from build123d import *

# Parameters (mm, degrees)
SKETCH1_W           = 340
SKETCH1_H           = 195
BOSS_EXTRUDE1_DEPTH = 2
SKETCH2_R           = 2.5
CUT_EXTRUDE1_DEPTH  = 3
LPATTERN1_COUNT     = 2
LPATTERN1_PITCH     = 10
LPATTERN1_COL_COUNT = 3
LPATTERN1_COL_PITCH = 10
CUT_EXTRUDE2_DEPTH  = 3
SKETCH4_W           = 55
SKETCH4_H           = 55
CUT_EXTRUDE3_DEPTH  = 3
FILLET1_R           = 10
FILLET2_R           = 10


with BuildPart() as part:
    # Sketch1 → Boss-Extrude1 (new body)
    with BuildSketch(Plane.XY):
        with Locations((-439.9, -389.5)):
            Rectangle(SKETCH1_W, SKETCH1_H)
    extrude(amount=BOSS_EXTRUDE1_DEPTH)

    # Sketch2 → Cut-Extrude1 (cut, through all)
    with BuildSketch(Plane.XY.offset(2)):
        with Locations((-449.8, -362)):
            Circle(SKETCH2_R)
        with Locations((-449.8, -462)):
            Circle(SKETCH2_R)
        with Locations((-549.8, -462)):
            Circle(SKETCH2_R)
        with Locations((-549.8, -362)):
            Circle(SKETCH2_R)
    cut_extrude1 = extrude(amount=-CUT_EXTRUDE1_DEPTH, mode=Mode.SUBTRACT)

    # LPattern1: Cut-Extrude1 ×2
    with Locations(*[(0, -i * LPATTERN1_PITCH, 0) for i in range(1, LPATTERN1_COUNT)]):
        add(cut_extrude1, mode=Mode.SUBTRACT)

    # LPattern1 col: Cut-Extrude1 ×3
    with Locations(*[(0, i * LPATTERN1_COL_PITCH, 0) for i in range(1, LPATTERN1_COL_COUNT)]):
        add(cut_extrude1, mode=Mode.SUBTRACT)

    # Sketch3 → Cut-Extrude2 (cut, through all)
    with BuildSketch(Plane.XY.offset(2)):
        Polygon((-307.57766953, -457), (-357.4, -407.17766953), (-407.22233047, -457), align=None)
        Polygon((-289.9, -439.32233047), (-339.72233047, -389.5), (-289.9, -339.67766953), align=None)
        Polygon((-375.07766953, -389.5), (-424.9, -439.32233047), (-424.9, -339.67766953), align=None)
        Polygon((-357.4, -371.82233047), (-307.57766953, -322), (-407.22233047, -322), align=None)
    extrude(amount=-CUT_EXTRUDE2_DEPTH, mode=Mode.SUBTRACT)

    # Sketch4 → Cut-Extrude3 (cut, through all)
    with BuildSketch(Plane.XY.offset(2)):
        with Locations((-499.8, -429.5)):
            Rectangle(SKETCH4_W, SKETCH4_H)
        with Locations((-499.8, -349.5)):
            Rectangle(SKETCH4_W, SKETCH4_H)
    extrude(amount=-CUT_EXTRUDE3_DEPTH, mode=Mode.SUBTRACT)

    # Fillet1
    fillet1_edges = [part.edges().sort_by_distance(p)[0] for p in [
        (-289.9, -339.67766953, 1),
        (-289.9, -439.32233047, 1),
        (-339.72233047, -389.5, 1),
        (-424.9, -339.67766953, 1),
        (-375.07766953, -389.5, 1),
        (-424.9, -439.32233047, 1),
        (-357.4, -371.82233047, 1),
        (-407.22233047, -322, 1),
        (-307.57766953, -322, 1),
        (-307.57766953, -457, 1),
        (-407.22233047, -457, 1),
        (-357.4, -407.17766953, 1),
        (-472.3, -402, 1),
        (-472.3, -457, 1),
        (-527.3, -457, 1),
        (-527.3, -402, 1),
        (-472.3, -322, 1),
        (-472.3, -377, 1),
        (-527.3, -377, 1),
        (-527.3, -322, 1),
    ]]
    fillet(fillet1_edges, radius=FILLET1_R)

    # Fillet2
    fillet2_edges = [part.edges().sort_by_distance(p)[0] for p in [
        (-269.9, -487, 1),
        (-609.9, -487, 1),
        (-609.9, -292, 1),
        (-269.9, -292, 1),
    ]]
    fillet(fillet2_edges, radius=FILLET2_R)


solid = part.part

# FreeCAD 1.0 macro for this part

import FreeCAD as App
import Part
import Sketcher
Q = App.Units.Quantity


def edges_at(feature, points):
    """Names of the edges that pass closest to the given points."""
    edges = feature.Shape.Edges
    near = lambda p: min(range(len(edges)), key=lambda i: edges[i].distToShape(Part.Vertex(*p))[0])
    return sorted({f"Edge{near(p) + 1}" for p in points})

doc = App.newDocument("Part")
body = doc.addObject("PartDesign::Body", "Body")

sketch1 = body.newObject("Sketcher::SketchObject", "Sketch")
sketch1.AttachmentSupport = (doc.getObject("XY_Plane"), [""])
sketch1.MapMode = "FlatFace"
sketch1.addGeometry([
    Part.LineSegment(App.Vector(-610, -292, 0), App.Vector(-610, -487, 0)),
    Part.LineSegment(App.Vector(-610, -487, 0), App.Vector(-270, -487, 0)),
    Part.LineSegment(App.Vector(-270, -487, 0), App.Vector(-270, -292, 0)),
    Part.LineSegment(App.Vector(-270, -292, 0), App.Vector(-610, -292, 0)),
], False)
sketch1.addConstraint([
    Sketcher.Constraint("Coincident", 0, 2, 1, 1),
    Sketcher.Constraint("Coincident", 1, 2, 2, 1),
    Sketcher.Constraint("Coincident", 2, 2, 3, 1),
    Sketcher.Constraint("Coincident", 3, 2, 0, 1),
    Sketcher.Constraint("Vertical", 0),
    Sketcher.Constraint("Horizontal", 1),
    Sketcher.Constraint("Vertical", 2),
    Sketcher.Constraint("Horizontal", 3),
    Sketcher.Constraint("DistanceX", 1, 1, 1, 2, Q("340 mm")),
    Sketcher.Constraint("DistanceY", 0, 2, 0, 1, Q("195 mm")),
    Sketcher.Constraint("DistanceY", 0, 2, -1, 1, Q("487 mm")),
    Sketcher.Constraint("DistanceX", 0, 2, -1, 1, Q("609.9 mm")),
])
pad1 = body.newObject("PartDesign::Pad", "Pad")
pad1.Profile = sketch1
pad1.Length = 2

sketch2 = body.newObject("Sketcher::SketchObject", "Sketch001")
sketch2.AttachmentSupport = (doc.getObject("XY_Plane"), [""])
sketch2.MapMode = "FlatFace"
sketch2.AttachmentOffset = App.Placement(App.Vector(0, 0, 2), App.Rotation())
sketch2.addGeometry([
    Part.Circle(App.Vector(-449.8, -362, 0), App.Vector(0, 0, 1), 2.5),
    Part.Circle(App.Vector(-449.8, -462, 0), App.Vector(0, 0, 1), 2.5),
    Part.Circle(App.Vector(-549.8, -462, 0), App.Vector(0, 0, 1), 2.5),
    Part.Circle(App.Vector(-549.8, -362, 0), App.Vector(0, 0, 1), 2.5),
], False)
sketch2.addConstraint([
    Sketcher.Constraint("Equal", 0, 1),
    Sketcher.Constraint("Equal", 1, 2),
    Sketcher.Constraint("Equal", 2, 3),
    Sketcher.Constraint("Horizontal", 1, 3, 2, 3),
    Sketcher.Constraint("Horizontal", 0, 3, 3, 3),
    Sketcher.Constraint("Vertical", 0, 3, 1, 3),
    Sketcher.Constraint("Vertical", 2, 3, 3, 3),
    Sketcher.Constraint("Diameter", 0, Q("5 mm")),
    Sketcher.Constraint("DistanceY", 0, 3, -1, 1, Q("362 mm")),
    Sketcher.Constraint("DistanceY", 1, 3, -1, 1, Q("462 mm")),
    Sketcher.Constraint("DistanceX", 2, 3, 1, 3, Q("100 mm")),
    Sketcher.Constraint("DistanceX", 0, 3, -1, 1, Q("449.8 mm")),
])
pocket1 = body.newObject("PartDesign::Pocket", "Pocket")
pocket1.Profile = sketch2
pocket1.Type = "ThroughAll"
doc.recompute()

linearpattern = body.newObject("PartDesign::LinearPattern", "LinearPattern")
linearpattern.Originals = [pocket1]
linearpattern.Direction = (doc.getObject("Y_Axis"), [""])
linearpattern.Mode = "offset"
linearpattern.Offset = 10
linearpattern.Occurrences = 2
linearpattern.Reversed = True
body.Tip = linearpattern
doc.recompute()

linearpattern2 = body.newObject("PartDesign::LinearPattern", "LinearPattern001")
linearpattern2.Originals = [pocket1]
linearpattern2.Direction = (doc.getObject("Y_Axis"), [""])
linearpattern2.Mode = "offset"
linearpattern2.Offset = 10
linearpattern2.Occurrences = 3
body.Tip = linearpattern2

sketch3 = body.newObject("Sketcher::SketchObject", "Sketch002")
sketch3.AttachmentSupport = (doc.getObject("XY_Plane"), [""])
sketch3.MapMode = "FlatFace"
sketch3.AttachmentOffset = App.Placement(App.Vector(0, 0, 2), App.Rotation())
sketch3.addGeometry([
    Part.LineSegment(App.Vector(-308, -457, 0), App.Vector(-357, -407, 0)),
    Part.LineSegment(App.Vector(-357, -407, 0), App.Vector(-407, -457, 0)),
    Part.LineSegment(App.Vector(-407, -457, 0), App.Vector(-308, -457, 0)),
    Part.LineSegment(App.Vector(-340, -390, 0), App.Vector(-290, -439, 0)),
    Part.LineSegment(App.Vector(-290, -439, 0), App.Vector(-290, -340, 0)),
    Part.LineSegment(App.Vector(-290, -340, 0), App.Vector(-340, -390, 0)),
    Part.LineSegment(App.Vector(-425, -439, 0), App.Vector(-375, -390, 0)),
    Part.LineSegment(App.Vector(-375, -390, 0), App.Vector(-425, -340, 0)),
    Part.LineSegment(App.Vector(-425, -340, 0), App.Vector(-425, -439, 0)),
    Part.LineSegment(App.Vector(-357, -372, 0), App.Vector(-308, -322, 0)),
    Part.LineSegment(App.Vector(-308, -322, 0), App.Vector(-407, -322, 0)),
    Part.LineSegment(App.Vector(-407, -322, 0), App.Vector(-357, -372, 0)),
], False)
sketch3.addConstraint([
    Sketcher.Constraint("Coincident", 0, 2, 1, 1),
    Sketcher.Constraint("Coincident", 1, 2, 2, 1),
    Sketcher.Constraint("Coincident", 2, 2, 0, 1),
    Sketcher.Constraint("Coincident", 3, 2, 4, 1),
    Sketcher.Constraint("Coincident", 4, 2, 5, 1),
    Sketcher.Constraint("Coincident", 5, 2, 3, 1),
    Sketcher.Constraint("Coincident", 6, 2, 7, 1),
    Sketcher.Constraint("Coincident", 7, 2, 8, 1),
    Sketcher.Constraint("Coincident", 8, 2, 6, 1),
    Sketcher.Constraint("Coincident", 9, 2, 10, 1),
    Sketcher.Constraint("Coincident", 10, 2, 11, 1),
    Sketcher.Constraint("Coincident", 11, 2, 9, 1),
    Sketcher.Constraint("Horizontal", 2),
    Sketcher.Constraint("Vertical", 4),
    Sketcher.Constraint("Vertical", 8),
    Sketcher.Constraint("Horizontal", 10),
    Sketcher.Constraint("Perpendicular", 0, 1),
    Sketcher.Constraint("Perpendicular", 1, 3),
    Sketcher.Constraint("Perpendicular", 3, 5),
    Sketcher.Constraint("Parallel", 5, 6),
    Sketcher.Constraint("Perpendicular", 6, 7),
    Sketcher.Constraint("Perpendicular", 7, 9),
    Sketcher.Constraint("Perpendicular", 9, 11),
    Sketcher.Constraint("Horizontal", 5, 2, 6, 2),
    Sketcher.Constraint("Horizontal", 4, 2, 7, 2),
    Sketcher.Constraint("Horizontal", 3, 2, 8, 2),
    Sketcher.Constraint("Vertical", 2, 2, 9, 2),
    Sketcher.Constraint("Vertical", 1, 2, 10, 2),
    Sketcher.Constraint("Equal", 10, 4),
    Sketcher.Constraint("DistanceY", 1, 2, -1, 1, Q("457 mm")),
    Sketcher.Constraint("DistanceY", 9, 2, -1, 1, Q("322 mm")),
    Sketcher.Constraint("DistanceX", 7, 2, 4, 2, Q("135 mm")),
    Sketcher.Constraint("DistanceX", 0, 2, -1, 1, Q("357.4 mm")),
    Sketcher.Constraint("DistanceX", 3, 2, -1, 1, Q("289.9 mm")),
    Sketcher.Constraint("DistanceY", 5, 2, -1, 1, Q("389.5 mm")),
    Sketcher.Constraint("DistanceX", 2, 1, 2, 2, Q("99.644661 mm")),
])
pocket2 = body.newObject("PartDesign::Pocket", "Pocket001")
pocket2.Profile = sketch3
pocket2.Type = "ThroughAll"

sketch4 = body.newObject("Sketcher::SketchObject", "Sketch003")
sketch4.AttachmentSupport = (doc.getObject("XY_Plane"), [""])
sketch4.MapMode = "FlatFace"
sketch4.AttachmentOffset = App.Placement(App.Vector(0, 0, 2), App.Rotation())
sketch4.addGeometry([
    Part.LineSegment(App.Vector(-527, -402, 0), App.Vector(-527, -457, 0)),
    Part.LineSegment(App.Vector(-527, -457, 0), App.Vector(-472, -457, 0)),
    Part.LineSegment(App.Vector(-472, -457, 0), App.Vector(-472, -402, 0)),
    Part.LineSegment(App.Vector(-472, -402, 0), App.Vector(-527, -402, 0)),
    Part.LineSegment(App.Vector(-527, -322, 0), App.Vector(-527, -377, 0)),
    Part.LineSegment(App.Vector(-527, -377, 0), App.Vector(-472, -377, 0)),
    Part.LineSegment(App.Vector(-472, -377, 0), App.Vector(-472, -322, 0)),
    Part.LineSegment(App.Vector(-472, -322, 0), App.Vector(-527, -322, 0)),
], False)
sketch4.addConstraint([
    Sketcher.Constraint("Coincident", 0, 2, 1, 1),
    Sketcher.Constraint("Coincident", 1, 2, 2, 1),
    Sketcher.Constraint("Coincident", 2, 2, 3, 1),
    Sketcher.Constraint("Coincident", 3, 2, 0, 1),
    Sketcher.Constraint("Coincident", 4, 2, 5, 1),
    Sketcher.Constraint("Coincident", 5, 2, 6, 1),
    Sketcher.Constraint("Coincident", 6, 2, 7, 1),
    Sketcher.Constraint("Coincident", 7, 2, 4, 1),
    Sketcher.Constraint("Vertical", 0),
    Sketcher.Constraint("Horizontal", 1),
    Sketcher.Constraint("Vertical", 2),
    Sketcher.Constraint("Horizontal", 3),
    Sketcher.Constraint("Vertical", 4),
    Sketcher.Constraint("Horizontal", 5),
    Sketcher.Constraint("Vertical", 6),
    Sketcher.Constraint("Horizontal", 7),
    Sketcher.Constraint("Vertical", 3, 2, 4, 2),
    Sketcher.Constraint("Vertical", 2, 2, 5, 2),
    Sketcher.Constraint("Equal", 7, 0),
    Sketcher.Constraint("Equal", 2, 4),
    Sketcher.Constraint("DistanceX", 1, 1, 1, 2, Q("55 mm")),
    Sketcher.Constraint("DistanceY", 0, 2, -1, 1, Q("457 mm")),
    Sketcher.Constraint("DistanceY", 4, 2, -1, 1, Q("377 mm")),
    Sketcher.Constraint("DistanceX", 0, 2, -1, 1, Q("527.3 mm")),
])
pocket3 = body.newObject("PartDesign::Pocket", "Pocket002")
pocket3.Profile = sketch4
pocket3.Type = "ThroughAll"
doc.recompute()

fillet = body.newObject("PartDesign::Fillet", "Fillet")
fillet.Base = (pocket3, edges_at(pocket3, [
    (-289.9, -339.678, 1),
    (-289.9, -439.322, 1),
    (-339.722, -389.5, 1),
    (-424.9, -339.678, 1),
    (-375.078, -389.5, 1),
    (-424.9, -439.322, 1),
    (-357.4, -371.822, 1),
    (-407.222, -322, 1),
    (-307.578, -322, 1),
    (-307.578, -457, 1),
    (-407.222, -457, 1),
    (-357.4, -407.178, 1),
    (-472.3, -402, 1),
    (-472.3, -457, 1),
    (-527.3, -457, 1),
    (-527.3, -402, 1),
    (-472.3, -322, 1),
    (-472.3, -377, 1),
    (-527.3, -377, 1),
    (-527.3, -322, 1),
]))
fillet.Radius = 10
doc.recompute()

fillet2 = body.newObject("PartDesign::Fillet", "Fillet001")
fillet2.Base = (fillet, edges_at(fillet, [
    (-269.9, -487, 1),
    (-609.9, -487, 1),
    (-609.9, -292, 1),
    (-269.9, -292, 1),
]))
fillet2.Radius = 10

doc.recompute()
